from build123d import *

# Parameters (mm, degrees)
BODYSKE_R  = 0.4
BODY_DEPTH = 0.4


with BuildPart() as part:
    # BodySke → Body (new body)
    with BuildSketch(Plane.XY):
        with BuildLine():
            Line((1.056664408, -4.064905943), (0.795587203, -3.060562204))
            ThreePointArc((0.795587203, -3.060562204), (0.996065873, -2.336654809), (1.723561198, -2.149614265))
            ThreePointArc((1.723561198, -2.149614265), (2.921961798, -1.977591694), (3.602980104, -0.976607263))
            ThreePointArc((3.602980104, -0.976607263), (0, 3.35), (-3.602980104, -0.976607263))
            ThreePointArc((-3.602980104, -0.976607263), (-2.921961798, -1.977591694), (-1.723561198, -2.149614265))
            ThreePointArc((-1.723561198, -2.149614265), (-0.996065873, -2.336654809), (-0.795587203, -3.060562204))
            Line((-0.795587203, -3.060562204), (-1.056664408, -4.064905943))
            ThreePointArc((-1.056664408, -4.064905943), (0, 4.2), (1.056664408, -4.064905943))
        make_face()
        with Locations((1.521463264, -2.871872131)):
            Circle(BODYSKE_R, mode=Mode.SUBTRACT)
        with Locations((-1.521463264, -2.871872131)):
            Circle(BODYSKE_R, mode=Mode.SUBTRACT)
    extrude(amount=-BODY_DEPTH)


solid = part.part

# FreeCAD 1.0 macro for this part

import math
import FreeCAD as App
import Part
import Sketcher
Q = App.Units.Quantity

doc = App.newDocument("Part")
body = doc.addObject("PartDesign::Body", "Body")

# Sketch on XY plane
sketch1 = body.newObject("Sketcher::SketchObject", "Sketch")
sketch1.AttachmentSupport = (doc.getObject("XY_Plane"), [""])
sketch1.MapMode = "FlatFace"
sketch1.addGeometry([
    Part.LineSegment(App.Vector(0.8, -3.06, 0), App.Vector(1.06, -4.06, 0)),  # 0
    Part.ArcOfCircle(Part.Circle(App.Vector(0, 0, 0), App.Vector(0, 0, 1), 4.2), math.radians(-75), math.radians(255)),  # 1
    Part.LineSegment(App.Vector(-1.06, -4.06, 0), App.Vector(-0.8, -3.06, 0)),  # 2
    Part.ArcOfCircle(Part.Circle(App.Vector(-1.52, -2.87, 0), App.Vector(0, 0, 1), 0.75), math.radians(-15), math.radians(106)),  # 3
    Part.ArcOfCircle(Part.Circle(App.Vector(-2.13, -0.71, 0), App.Vector(0, 0, 1), 1.5), math.radians(-170), math.radians(-74)),  # 4
    Part.ArcOfCircle(Part.Circle(App.Vector(0, -0.31, 0), App.Vector(0, 0, 1), 3.66), math.radians(-10), math.radians(190)),  # 5
    Part.ArcOfCircle(Part.Circle(App.Vector(2.13, -0.71, 0), App.Vector(0, 0, 1), 1.5), math.radians(-106), math.radians(-10)),  # 6
    Part.ArcOfCircle(Part.Circle(App.Vector(1.52, -2.87, 0), App.Vector(0, 0, 1), 0.75), math.radians(74), math.radians(195)),  # 7
    Part.Circle(App.Vector(1.52, -2.87, 0), App.Vector(0, 0, 1), 0.4),  # 8
    Part.Circle(App.Vector(-1.52, -2.87, 0), App.Vector(0, 0, 1), 0.4),  # 9
], False)
sketch1.addConstraint([
    Sketcher.Constraint("Coincident", 0, 2, 1, 1),
    Sketcher.Constraint("Coincident", 1, 2, 2, 1),
    Sketcher.Constraint("Tangent", 2, 2, 3, 1),
    Sketcher.Constraint("Tangent", 3, 2, 4, 2),
    Sketcher.Constraint("Tangent", 4, 1, 5, 2),
    Sketcher.Constraint("Tangent", 5, 1, 6, 2),
    Sketcher.Constraint("Tangent", 6, 1, 7, 1),
    Sketcher.Constraint("Tangent", 7, 2, 0, 1),
    Sketcher.Constraint("Coincident", 1, 3, -1, 1),
    Sketcher.Constraint("Coincident", 8, 3, 7, 3),
    Sketcher.Constraint("Coincident", 9, 3, 3, 3),
    Sketcher.Constraint("Equal", 4, 6),
    Sketcher.Constraint("Equal", 3, 7),
    Sketcher.Constraint("Equal", 8, 9),
    Sketcher.Constraint("Symmetric", 4, 3, 6, 3, -2),
    Sketcher.Constraint("Symmetric", 2, 2, 7, 2, -2),
    Sketcher.Constraint("Diameter", 8, Q("0.8 mm")),
    Sketcher.Constraint("Radius", 1, Q("4.2 mm")),
    Sketcher.Constraint("Radius", 4, Q("1.5 mm")),
    Sketcher.Constraint("Radius", 3, Q("0.75 mm")),
    Sketcher.Constraint("Radius", 5, Q("3.663494 mm")),
    Sketcher.Constraint("DistanceY", 4, 3, -1, 1, Q("0.705099 mm")),
    Sketcher.Constraint("DistanceX", 0, 2, 8, 3, Q("0.464799 mm")),
    Sketcher.Constraint("DistanceX", 3, 2, -1, 1, Q("1.723561 mm")),
    Sketcher.Constraint("DistanceX", 4, 1, -1, 1, Q("3.60298 mm")),
])
pad1 = body.newObject("PartDesign::Pad", "Pad")
pad1.Profile = sketch1
pad1.Length = 0.4
pad1.Reversed = True

doc.recompute()
